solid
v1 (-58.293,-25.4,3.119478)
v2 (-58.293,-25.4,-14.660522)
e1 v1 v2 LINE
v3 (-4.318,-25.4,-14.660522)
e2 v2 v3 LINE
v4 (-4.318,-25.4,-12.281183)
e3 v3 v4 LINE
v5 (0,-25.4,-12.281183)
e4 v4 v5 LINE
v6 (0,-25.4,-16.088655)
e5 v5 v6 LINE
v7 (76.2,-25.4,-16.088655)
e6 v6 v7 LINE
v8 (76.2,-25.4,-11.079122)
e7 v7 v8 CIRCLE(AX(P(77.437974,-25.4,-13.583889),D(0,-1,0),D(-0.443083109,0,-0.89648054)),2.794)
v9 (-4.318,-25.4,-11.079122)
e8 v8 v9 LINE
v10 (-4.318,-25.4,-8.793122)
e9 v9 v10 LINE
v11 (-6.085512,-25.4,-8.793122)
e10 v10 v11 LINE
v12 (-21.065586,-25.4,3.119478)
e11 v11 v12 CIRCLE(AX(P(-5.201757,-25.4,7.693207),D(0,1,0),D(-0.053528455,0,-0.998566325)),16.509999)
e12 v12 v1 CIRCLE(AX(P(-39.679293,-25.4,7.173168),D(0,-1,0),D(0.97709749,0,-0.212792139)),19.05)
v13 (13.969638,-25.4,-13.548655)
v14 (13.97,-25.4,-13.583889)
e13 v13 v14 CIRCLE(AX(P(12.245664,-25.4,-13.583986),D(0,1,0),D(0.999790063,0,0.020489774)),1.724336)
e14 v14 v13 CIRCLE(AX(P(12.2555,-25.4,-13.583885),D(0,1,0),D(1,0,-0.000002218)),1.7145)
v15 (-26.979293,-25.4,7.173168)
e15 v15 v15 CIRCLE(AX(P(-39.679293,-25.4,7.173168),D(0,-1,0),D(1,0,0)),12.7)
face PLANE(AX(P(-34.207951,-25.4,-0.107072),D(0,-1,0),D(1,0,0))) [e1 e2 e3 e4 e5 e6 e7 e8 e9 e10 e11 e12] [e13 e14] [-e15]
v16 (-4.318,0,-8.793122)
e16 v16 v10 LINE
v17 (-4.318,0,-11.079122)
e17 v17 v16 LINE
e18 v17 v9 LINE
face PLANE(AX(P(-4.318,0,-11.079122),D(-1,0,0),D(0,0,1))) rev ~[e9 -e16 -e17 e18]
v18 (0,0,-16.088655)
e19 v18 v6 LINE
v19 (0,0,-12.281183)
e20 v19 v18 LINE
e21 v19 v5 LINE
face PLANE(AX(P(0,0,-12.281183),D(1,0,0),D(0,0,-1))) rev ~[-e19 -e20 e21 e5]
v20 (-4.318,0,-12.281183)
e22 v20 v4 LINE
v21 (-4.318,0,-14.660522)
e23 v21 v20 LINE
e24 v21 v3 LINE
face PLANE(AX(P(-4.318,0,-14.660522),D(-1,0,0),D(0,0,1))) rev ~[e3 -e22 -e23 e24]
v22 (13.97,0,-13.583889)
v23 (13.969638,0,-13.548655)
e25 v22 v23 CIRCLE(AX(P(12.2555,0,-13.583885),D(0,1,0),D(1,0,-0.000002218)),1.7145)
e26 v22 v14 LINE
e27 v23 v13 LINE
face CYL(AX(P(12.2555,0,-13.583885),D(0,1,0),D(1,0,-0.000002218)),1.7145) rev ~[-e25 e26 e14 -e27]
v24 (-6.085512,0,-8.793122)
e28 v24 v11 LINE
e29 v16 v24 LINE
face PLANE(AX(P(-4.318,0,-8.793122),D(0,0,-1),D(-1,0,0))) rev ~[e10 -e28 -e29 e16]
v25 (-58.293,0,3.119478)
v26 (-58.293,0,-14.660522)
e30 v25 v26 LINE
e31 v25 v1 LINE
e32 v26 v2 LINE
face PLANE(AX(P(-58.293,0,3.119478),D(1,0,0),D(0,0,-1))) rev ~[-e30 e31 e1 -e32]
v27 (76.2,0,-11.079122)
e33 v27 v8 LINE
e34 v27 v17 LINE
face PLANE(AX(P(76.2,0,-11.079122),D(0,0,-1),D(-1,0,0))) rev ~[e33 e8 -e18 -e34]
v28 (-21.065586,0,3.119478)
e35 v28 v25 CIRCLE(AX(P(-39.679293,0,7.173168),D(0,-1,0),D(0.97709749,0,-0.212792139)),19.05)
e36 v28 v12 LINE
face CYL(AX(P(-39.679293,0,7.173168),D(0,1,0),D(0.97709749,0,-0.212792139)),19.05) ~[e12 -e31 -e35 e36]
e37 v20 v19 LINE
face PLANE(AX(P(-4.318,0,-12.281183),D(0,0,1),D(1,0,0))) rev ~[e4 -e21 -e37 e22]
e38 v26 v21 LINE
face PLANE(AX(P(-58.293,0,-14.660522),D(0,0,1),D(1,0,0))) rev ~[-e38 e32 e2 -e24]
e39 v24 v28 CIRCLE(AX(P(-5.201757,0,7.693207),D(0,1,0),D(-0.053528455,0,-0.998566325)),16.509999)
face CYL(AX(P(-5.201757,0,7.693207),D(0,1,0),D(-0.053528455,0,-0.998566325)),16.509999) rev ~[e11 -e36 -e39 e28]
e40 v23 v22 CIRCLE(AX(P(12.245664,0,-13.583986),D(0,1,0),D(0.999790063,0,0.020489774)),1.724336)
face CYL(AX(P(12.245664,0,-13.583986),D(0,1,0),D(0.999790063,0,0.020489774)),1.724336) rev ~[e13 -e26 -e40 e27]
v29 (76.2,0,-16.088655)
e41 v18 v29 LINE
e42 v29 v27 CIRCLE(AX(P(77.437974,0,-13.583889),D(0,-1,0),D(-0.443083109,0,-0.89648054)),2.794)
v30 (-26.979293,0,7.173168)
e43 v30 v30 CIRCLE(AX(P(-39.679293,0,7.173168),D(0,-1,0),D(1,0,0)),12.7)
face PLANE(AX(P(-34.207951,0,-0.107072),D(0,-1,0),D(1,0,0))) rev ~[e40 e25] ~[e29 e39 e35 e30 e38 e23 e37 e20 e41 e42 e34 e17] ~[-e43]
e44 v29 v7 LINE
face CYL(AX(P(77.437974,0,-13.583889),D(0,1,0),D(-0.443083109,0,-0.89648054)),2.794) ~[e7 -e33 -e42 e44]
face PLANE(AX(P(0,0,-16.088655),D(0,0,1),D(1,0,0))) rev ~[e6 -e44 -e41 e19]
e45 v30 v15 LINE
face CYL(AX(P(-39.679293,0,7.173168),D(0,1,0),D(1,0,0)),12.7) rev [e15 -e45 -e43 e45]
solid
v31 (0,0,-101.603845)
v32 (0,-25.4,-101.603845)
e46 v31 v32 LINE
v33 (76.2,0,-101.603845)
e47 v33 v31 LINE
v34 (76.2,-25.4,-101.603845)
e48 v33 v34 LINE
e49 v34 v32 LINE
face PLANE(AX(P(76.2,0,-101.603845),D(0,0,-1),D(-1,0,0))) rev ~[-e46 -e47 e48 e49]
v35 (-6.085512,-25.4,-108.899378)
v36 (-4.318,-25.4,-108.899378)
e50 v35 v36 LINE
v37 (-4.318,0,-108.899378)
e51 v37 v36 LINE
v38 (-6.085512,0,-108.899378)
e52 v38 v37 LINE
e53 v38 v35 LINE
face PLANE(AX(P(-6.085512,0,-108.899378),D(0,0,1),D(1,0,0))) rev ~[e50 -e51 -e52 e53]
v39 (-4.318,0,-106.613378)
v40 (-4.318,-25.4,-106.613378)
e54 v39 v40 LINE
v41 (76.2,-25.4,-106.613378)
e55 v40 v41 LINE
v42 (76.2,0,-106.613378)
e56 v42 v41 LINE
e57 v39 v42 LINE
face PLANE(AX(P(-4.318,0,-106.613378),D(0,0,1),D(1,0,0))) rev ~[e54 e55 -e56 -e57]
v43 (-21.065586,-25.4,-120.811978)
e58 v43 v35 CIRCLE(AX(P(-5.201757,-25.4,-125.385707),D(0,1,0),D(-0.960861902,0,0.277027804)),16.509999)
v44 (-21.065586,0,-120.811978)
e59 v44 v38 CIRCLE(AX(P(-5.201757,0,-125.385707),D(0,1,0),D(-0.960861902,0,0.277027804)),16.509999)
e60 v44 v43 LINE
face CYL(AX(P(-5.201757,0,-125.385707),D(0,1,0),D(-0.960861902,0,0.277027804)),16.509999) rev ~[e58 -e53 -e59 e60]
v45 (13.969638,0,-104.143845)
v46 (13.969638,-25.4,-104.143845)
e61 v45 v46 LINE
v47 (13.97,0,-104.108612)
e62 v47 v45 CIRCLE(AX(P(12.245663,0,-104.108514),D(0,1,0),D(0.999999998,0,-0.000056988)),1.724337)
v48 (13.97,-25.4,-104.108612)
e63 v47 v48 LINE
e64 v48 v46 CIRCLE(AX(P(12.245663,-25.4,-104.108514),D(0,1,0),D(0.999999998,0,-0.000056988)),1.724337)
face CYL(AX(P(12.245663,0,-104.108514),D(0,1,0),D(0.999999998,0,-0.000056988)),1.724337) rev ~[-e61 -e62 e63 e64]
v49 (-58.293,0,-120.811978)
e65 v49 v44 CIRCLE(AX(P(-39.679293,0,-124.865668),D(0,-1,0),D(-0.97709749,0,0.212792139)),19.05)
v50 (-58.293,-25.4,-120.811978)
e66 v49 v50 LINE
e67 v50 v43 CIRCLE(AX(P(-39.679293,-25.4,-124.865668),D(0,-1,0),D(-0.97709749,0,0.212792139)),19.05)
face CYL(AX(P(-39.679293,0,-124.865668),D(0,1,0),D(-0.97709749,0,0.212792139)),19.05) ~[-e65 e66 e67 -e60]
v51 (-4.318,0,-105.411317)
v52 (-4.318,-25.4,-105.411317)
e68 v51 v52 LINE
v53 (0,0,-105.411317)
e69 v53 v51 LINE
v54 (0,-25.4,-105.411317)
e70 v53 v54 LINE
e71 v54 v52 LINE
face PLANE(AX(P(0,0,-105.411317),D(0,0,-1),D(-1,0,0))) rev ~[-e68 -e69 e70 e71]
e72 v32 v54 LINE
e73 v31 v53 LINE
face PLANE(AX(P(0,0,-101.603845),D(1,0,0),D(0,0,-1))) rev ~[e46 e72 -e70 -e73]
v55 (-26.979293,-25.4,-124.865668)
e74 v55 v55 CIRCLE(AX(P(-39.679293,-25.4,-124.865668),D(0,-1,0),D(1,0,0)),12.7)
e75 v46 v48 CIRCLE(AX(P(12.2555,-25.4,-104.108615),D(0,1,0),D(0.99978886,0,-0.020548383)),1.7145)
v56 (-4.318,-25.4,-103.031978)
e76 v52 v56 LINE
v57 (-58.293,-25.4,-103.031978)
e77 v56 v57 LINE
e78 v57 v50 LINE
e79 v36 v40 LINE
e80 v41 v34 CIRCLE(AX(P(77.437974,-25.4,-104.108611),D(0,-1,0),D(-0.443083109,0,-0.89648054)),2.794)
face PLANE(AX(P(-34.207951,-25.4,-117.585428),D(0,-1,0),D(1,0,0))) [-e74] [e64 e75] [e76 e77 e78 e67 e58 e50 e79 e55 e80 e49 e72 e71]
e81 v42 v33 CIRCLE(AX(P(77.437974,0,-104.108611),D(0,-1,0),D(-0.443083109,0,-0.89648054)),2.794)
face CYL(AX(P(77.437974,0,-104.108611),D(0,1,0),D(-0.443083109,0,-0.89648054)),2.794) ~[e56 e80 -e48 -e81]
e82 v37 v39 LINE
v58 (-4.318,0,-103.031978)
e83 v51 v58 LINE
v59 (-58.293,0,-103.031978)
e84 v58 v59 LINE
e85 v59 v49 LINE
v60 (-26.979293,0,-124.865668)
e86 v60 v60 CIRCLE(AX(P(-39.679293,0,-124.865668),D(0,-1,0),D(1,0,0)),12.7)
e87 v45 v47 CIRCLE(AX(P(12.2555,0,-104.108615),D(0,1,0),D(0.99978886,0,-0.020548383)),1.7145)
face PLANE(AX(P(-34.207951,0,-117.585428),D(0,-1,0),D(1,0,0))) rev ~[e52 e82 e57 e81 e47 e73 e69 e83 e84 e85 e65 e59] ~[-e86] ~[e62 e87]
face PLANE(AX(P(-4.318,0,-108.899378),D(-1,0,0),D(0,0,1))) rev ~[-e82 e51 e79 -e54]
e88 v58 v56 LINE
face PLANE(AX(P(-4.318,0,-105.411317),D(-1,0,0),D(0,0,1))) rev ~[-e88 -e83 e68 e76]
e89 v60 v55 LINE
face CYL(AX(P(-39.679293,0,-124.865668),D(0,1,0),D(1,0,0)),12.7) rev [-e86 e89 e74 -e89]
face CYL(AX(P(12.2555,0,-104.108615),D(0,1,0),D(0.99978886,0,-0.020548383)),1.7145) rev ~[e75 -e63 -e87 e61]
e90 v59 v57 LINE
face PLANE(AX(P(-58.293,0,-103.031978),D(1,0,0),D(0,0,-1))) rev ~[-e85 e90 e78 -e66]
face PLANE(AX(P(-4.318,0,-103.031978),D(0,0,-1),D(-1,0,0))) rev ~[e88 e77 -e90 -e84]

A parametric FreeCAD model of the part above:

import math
import FreeCAD as App
import Part
import Sketcher

V = App.Vector
Q = App.Units.Quantity

doc = App.newDocument("Part")
params = doc.addObject("Spreadsheet::Sheet", "Params")
for row, (alias, value) in enumerate([
    ("sketch1_diameter", "1 in"),
    ("sketch1_width", "3 in"),
    ("sketch1_radius", "0.75 in"),
    ("sketch1_radius2", "0.11 in"),
    ("sketch1_radius3", "0.6499999 in"),
    ("pad1_length", "1 in"),
], start=1):
    params.set(f"A{row}", alias)
    params.set(f"B{row}", "=" + value)
    params.setAlias(f"B{row}", alias)

body = doc.addObject("PartDesign::Body", "Body")
body.AllowCompound = True

# Sketch on XZ plane
sketch1 = doc.addObject("Sketcher::SketchObject", "Sketch")
body.addObject(sketch1)
sketch1.AttachmentSupport = (doc.XZ_Plane, [""])
sketch1.MapMode = "FlatFace"
sketch1.addGeometry([
    Part.ArcOfCircle(Part.Circle(V(-39.679, 7.173, 0), V(0, 0, 1), 19.05), math.radians(-12), math.radians(192)),  # 0
    Part.LineSegment(V(-58.293, 3.119, 0), V(-58.293, -14.661, 0)),  # 1
    Part.LineSegment(V(-58.293, -14.661, 0), V(-4.318, -14.661, 0)),  # 2
    Part.LineSegment(V(-4.318, -14.661, 0), V(-4.318, -12.281, 0)),  # 3
    Part.LineSegment(V(-4.318, -12.281, 0), V(0, -12.281, 0)),  # 4
    Part.LineSegment(V(0, -12.281, 0), V(0, -16.089, 0)),  # 5
    Part.LineSegment(V(0, -16.089, 0), V(76.2, -16.089, 0)),  # 6
    Part.ArcOfCircle(Part.Circle(V(77.438, -13.584, 0), V(0, 0, 1), 2.794), math.radians(-116), math.radians(116)),  # 7
    Part.LineSegment(V(76.2, -11.079, 0), V(-4.318, -11.079, 0)),  # 8
    Part.LineSegment(V(-4.318, -11.079, 0), V(-4.318, -8.793, 0)),  # 9
    Part.LineSegment(V(-4.318, -8.793, 0), V(-6.086, -8.793, 0)),  # 10
    Part.ArcOfCircle(Part.Circle(V(-5.202, 7.693, 0), V(0, 0, 1), 16.51), math.radians(-164), math.radians(-93)),  # 11
    Part.ArcOfCircle(Part.Circle(V(12.246, -13.584, 0), V(0, 0, 1), 1.724), math.radians(0), math.radians(1.17)),  # 12
    Part.ArcOfCircle(Part.Circle(V(12.256, -13.584, 0), V(0, 0, 1), 1.714), math.radians(1), math.radians(360)),  # 13
    Part.Circle(V(-39.679, 7.173, 0), V(0, 0, 1), 12.7),  # 14
    Part.LineSegment(V(-4.318, -103.032, 0), V(-58.293, -103.032, 0)),  # 15
    Part.LineSegment(V(-58.293, -103.032, 0), V(-58.293, -120.812, 0)),  # 16
    Part.ArcOfCircle(Part.Circle(V(-39.679, -124.866, 0), V(0, 0, 1), 19.05), math.radians(168), math.radians(372)),  # 17
    Part.ArcOfCircle(Part.Circle(V(-5.202, -125.386, 0), V(0, 0, 1), 16.51), math.radians(93), math.radians(164)),  # 18
    Part.LineSegment(V(-6.086, -108.899, 0), V(-4.318, -108.899, 0)),  # 19
    Part.LineSegment(V(-4.318, -108.899, 0), V(-4.318, -106.613, 0)),  # 20
    Part.LineSegment(V(-4.318, -106.613, 0), V(76.2, -106.613, 0)),  # 21
    Part.ArcOfCircle(Part.Circle(V(77.438, -104.109, 0), V(0, 0, 1), 2.794), math.radians(-116), math.radians(116)),  # 22
    Part.LineSegment(V(76.2, -101.604, 0), V(0, -101.604, 0)),  # 23
    Part.LineSegment(V(0, -101.604, 0), V(0, -105.411, 0)),  # 24
    Part.LineSegment(V(0, -105.411, 0), V(-4.318, -105.411, 0)),  # 25
    Part.LineSegment(V(-4.318, -105.411, 0), V(-4.318, -103.032, 0)),  # 26
    Part.Circle(V(-39.679, -124.866, 0), V(0, 0, 1), 12.7),  # 27
    Part.ArcOfCircle(Part.Circle(V(12.246, -104.109, 0), V(0, 0, 1), 1.724), math.radians(-1.17), math.radians(0)),  # 28
    Part.ArcOfCircle(Part.Circle(V(12.256, -104.109, 0), V(0, 0, 1), 1.714), math.radians(0), math.radians(359)),  # 29
], False)
sketch1.addConstraint([
    Sketcher.Constraint("Coincident", 0, 2, 1, 1),
    Sketcher.Constraint("Coincident", 1, 2, 2, 1),
    Sketcher.Constraint("Coincident", 2, 2, 3, 1),
    Sketcher.Constraint("Coincident", 3, 2, 4, 1),
    Sketcher.Constraint("Coincident", 4, 2, 5, 1),
    Sketcher.Constraint("Coincident", 5, 2, 6, 1),
    Sketcher.Constraint("Coincident", 6, 2, 7, 1),
    Sketcher.Constraint("Coincident", 7, 2, 8, 1),
    Sketcher.Constraint("Coincident", 8, 2, 9, 1),
    Sketcher.Constraint("Coincident", 9, 2, 10, 1),
    Sketcher.Constraint("Coincident", 10, 2, 11, 2),
    Sketcher.Constraint("Coincident", 11, 1, 0, 1),
    Sketcher.Constraint("Coincident", 12, 1, 13, 2),
    Sketcher.Constraint("Coincident", 13, 1, 12, 2),
    Sketcher.Constraint("Coincident", 15, 2, 16, 1),
    Sketcher.Constraint("Coincident", 16, 2, 17, 1),
    Sketcher.Constraint("Coincident", 17, 2, 18, 2),
    Sketcher.Constraint("Coincident", 18, 1, 19, 1),
    Sketcher.Constraint("Coincident", 19, 2, 20, 1),
    Sketcher.Constraint("Coincident", 20, 2, 21, 1),
    Sketcher.Constraint("Coincident", 21, 2, 22, 1),
    Sketcher.Constraint("Coincident", 22, 2, 23, 1),
    Sketcher.Constraint("Coincident", 23, 2, 24, 1),
    Sketcher.Constraint("Coincident", 24, 2, 25, 1),
    Sketcher.Constraint("Coincident", 25, 2, 26, 1),
    Sketcher.Constraint("Coincident", 26, 2, 15, 1),
    Sketcher.Constraint("Coincident", 28, 1, 29, 2),
    Sketcher.Constraint("Coincident", 29, 1, 28, 2),
    Sketcher.Constraint("Vertical", 1),
    Sketcher.Constraint("Horizontal", 2),
    Sketcher.Constraint("Vertical", 3),
    Sketcher.Constraint("Horizontal", 4),
    Sketcher.Constraint("Vertical", 5),
    Sketcher.Constraint("Horizontal", 6),
    Sketcher.Constraint("Horizontal", 8),
    Sketcher.Constraint("Vertical", 9),
    Sketcher.Constraint("Horizontal", 10),
    Sketcher.Constraint("Horizontal", 15),
    Sketcher.Constraint("Vertical", 16),
    Sketcher.Constraint("Horizontal", 19),
    Sketcher.Constraint("Vertical", 20),
    Sketcher.Constraint("Horizontal", 21),
    Sketcher.Constraint("Horizontal", 23),
    Sketcher.Constraint("Vertical", 24),
    Sketcher.Constraint("Horizontal", 25),
    Sketcher.Constraint("Vertical", 26),
    Sketcher.Constraint("Coincident", 14, 3, 0, 3),
    Sketcher.Constraint("Coincident", 27, 3, 17, 3),
    Sketcher.Constraint("Equal", 0, 17),
    Sketcher.Constraint("Equal", 11, 18),
    Sketcher.Constraint("Equal", 7, 22),
    Sketcher.Constraint("Equal", 14, 27),
    Sketcher.Constraint("Equal", 12, 28),
    Sketcher.Constraint("Equal", 13, 29),
    Sketcher.Constraint("PointOnObject", 4, 2, -2),
    Sketcher.Constraint("PointOnObject", 23, 2, -2),
    Sketcher.Constraint("Horizontal", 0, 2, 11, 1),
    Sketcher.Constraint("Horizontal", 7, 3, 12, 1),
    Sketcher.Constraint("Horizontal", 16, 2, 17, 2),
    Sketcher.Constraint("Horizontal", 22, 3, 29, 1),
    Sketcher.Constraint("Vertical", 14, 3, 17, 3),
    Sketcher.Constraint("Vertical", 11, 3, 18, 3),
    Sketcher.Constraint("Vertical", 7, 3, 22, 3),
    Sketcher.Constraint("Vertical", 12, 3, 28, 3),
    Sketcher.Constraint("Vertical", 6, 2, 7, 2),
    Sketcher.Constraint("Vertical", 3, 2, 8, 2),
    Sketcher.Constraint("Vertical", 1, 2, 15, 2),
    Sketcher.Constraint("Vertical", 10, 2, 18, 1),
    Sketcher.Constraint("Vertical", 9, 2, 19, 2),
    Sketcher.Constraint("Vertical", 7, 2, 21, 2),
    Sketcher.Constraint("Vertical", 21, 2, 22, 2),
    Sketcher.Constraint("Vertical", 20, 2, 25, 2),
    Sketcher.Constraint("Vertical", 13, 1, 28, 1),
    Sketcher.Constraint("Equal", 1, 16),
    Sketcher.Constraint("Equal", 9, 20),
    Sketcher.Constraint("Equal", 5, 24),
    Sketcher.Constraint("Diameter", 14, Q("1 in")),
    Sketcher.Constraint("DistanceX", 6, 1, 6, 2, Q("3 in")),
    Sketcher.Constraint("Radius", 0, Q("0.75 in")),
    Sketcher.Constraint("Radius", 7, Q("0.11 in")),
    Sketcher.Constraint("Radius", 11, Q("0.6499999 in")),
    Sketcher.Constraint("DistanceY", 1, 2, 1, 1, Q("0.7 in")),
    Sketcher.Constraint("DistanceX", 4, 1, 4, 2, Q("0.17 in")),
    Sketcher.Constraint("DistanceY", 9, 1, 9, 2, Q("0.09 in")),
    Sketcher.Constraint("Radius", 13, Q("0.0675 in")),
    Sketcher.Constraint("DistanceY", 5, 2, 13, 1, Q("0.1 in")),
    Sketcher.Constraint("DistanceY", 28, 1, 23, 2, Q("0.1 in")),
    Sketcher.Constraint("DistanceX", 2, 1, 2, 2, Q("2.125 in")),
    Sketcher.Constraint("DistanceX", -1, 1, 12, 1, Q("0.55 in")),
    Sketcher.Constraint("DistanceY", 2, 2, 8, 2, Q("0.141 in")),
    Sketcher.Constraint("Radius", 12, Q("1.724336 mm")),
    Sketcher.Constraint("DistanceX", 18, 1, 28, 3, Q("0.7216998 in")),
    Sketcher.Constraint("DistanceY", 3, 1, 3, 2, Q("2.379339 mm")),
    Sketcher.Constraint("DistanceY", 5, 2, 5, 1, Q("3.807472 mm")),
    Sketcher.Constraint("DistanceY", -1, 1, 0, 3, Q("7.173168 mm")),
    Sketcher.Constraint("DistanceY", 7, 3, -1, 1, Q("13.583889 mm")),
    Sketcher.Constraint("DistanceY", 17, 3, -1, 1, Q("124.865668 mm")),
    Sketcher.Constraint("DistanceX", -1, 1, 13, 1, Q("13.969638 mm")),
])
sketch1.setExpression("Constraints[76]", "Params.sketch1_diameter")
sketch1.setExpression("Constraints[77]", "Params.sketch1_width")
sketch1.setExpression("Constraints[78]", "Params.sketch1_radius")
sketch1.setExpression("Constraints[79]", "Params.sketch1_radius2")
sketch1.setExpression("Constraints[80]", "Params.sketch1_radius3")
pad1 = doc.addObject("PartDesign::Pad", "Pad")
body.addObject(pad1)
pad1.Profile = sketch1
pad1.setExpression("Length", "Params.pad1_length")

doc.recompute()
